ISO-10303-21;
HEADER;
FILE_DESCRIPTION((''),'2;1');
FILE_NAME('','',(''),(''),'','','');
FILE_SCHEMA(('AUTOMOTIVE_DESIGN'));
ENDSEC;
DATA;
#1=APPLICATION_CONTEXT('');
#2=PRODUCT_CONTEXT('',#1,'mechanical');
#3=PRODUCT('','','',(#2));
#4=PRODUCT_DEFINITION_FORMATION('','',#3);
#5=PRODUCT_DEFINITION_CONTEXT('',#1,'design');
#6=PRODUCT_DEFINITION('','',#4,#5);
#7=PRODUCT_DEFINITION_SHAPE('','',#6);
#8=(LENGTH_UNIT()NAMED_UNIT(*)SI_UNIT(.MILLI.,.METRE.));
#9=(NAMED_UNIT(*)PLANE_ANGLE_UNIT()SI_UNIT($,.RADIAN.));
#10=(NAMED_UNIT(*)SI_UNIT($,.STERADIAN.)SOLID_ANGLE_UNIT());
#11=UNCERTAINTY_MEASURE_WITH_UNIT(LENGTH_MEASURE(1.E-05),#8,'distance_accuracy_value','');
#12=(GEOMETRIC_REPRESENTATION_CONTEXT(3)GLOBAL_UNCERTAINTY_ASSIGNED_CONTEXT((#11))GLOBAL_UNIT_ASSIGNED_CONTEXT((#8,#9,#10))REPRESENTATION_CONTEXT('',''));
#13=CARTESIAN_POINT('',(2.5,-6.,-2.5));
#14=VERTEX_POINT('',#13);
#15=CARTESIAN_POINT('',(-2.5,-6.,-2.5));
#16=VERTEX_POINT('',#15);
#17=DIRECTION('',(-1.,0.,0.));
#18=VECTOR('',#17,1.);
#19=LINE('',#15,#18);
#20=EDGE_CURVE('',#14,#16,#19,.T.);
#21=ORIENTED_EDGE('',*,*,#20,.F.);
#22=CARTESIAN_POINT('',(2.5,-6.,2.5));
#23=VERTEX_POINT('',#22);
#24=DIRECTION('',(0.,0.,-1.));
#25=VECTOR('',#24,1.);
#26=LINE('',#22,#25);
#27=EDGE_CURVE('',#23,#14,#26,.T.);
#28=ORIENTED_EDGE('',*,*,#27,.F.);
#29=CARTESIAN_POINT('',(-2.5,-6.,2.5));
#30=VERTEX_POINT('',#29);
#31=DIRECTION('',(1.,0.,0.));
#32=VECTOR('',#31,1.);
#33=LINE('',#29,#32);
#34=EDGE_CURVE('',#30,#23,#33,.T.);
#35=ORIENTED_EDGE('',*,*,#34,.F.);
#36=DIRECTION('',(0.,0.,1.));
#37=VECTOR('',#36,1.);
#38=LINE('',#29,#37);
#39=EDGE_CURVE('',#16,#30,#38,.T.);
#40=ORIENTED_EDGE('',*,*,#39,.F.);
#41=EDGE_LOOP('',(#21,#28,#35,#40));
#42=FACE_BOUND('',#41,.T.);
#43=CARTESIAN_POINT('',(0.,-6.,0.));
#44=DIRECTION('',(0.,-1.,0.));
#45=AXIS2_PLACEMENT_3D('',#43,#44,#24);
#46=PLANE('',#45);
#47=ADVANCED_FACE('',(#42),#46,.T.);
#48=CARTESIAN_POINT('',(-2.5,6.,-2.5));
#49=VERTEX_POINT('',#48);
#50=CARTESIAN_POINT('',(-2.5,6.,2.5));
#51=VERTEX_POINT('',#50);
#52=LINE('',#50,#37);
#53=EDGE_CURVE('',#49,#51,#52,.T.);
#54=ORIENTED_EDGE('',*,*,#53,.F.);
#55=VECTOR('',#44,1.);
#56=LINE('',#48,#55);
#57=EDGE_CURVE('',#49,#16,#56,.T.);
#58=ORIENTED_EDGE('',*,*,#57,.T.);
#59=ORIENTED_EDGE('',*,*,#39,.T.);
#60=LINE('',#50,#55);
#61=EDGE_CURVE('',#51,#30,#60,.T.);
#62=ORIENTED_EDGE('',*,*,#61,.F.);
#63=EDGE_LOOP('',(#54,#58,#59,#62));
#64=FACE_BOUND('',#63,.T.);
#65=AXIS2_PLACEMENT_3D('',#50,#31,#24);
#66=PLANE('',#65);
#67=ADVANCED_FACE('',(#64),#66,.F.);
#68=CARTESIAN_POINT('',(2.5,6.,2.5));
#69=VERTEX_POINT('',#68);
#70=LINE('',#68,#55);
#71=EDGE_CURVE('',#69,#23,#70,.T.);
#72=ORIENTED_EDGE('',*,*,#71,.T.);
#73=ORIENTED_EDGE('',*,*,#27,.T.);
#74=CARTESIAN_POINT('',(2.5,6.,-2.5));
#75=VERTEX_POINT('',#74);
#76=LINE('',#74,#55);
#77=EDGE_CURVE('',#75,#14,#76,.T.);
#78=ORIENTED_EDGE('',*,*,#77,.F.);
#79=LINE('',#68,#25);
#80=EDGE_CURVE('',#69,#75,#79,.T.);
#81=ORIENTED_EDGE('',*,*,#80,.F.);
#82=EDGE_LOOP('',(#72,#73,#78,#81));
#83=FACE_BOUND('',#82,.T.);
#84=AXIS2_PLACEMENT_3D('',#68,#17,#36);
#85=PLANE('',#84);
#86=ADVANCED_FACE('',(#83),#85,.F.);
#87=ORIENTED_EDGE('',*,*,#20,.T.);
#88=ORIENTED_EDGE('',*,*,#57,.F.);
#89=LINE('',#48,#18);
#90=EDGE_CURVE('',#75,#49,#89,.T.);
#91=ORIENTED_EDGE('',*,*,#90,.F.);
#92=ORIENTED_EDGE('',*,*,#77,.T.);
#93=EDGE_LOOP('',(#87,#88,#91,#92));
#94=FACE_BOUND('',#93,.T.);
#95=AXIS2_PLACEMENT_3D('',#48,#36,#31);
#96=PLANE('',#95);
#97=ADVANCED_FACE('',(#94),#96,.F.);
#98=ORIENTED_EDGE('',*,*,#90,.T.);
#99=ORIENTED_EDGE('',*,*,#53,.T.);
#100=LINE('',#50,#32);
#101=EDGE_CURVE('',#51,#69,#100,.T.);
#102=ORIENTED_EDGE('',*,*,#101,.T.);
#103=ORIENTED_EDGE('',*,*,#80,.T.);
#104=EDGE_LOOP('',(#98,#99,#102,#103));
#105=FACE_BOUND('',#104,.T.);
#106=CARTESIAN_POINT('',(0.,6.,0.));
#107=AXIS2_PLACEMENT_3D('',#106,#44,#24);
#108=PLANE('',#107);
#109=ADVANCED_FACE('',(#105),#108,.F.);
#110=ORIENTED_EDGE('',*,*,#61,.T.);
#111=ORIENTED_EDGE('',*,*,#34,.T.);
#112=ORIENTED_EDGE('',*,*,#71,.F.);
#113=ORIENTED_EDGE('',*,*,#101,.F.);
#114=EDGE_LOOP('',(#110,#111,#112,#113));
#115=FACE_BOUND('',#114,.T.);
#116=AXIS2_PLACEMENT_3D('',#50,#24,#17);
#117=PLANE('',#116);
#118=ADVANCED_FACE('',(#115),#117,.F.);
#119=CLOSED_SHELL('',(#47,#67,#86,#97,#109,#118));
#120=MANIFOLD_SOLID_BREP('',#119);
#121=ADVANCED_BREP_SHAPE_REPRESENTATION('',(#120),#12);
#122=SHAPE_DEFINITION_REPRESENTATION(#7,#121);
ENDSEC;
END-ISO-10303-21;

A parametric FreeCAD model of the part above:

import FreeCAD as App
import Part
import Sketcher

doc = App.newDocument("Part")
body = doc.addObject("PartDesign::Body", "Body")

sketch1 = body.newObject("Sketcher::SketchObject", "Sketch")
sketch1.AttachmentSupport = (doc.getObject("XZ_Plane"), [""])
sketch1.MapMode = "FlatFace"
sketch1.addGeometry(Part.LineSegment(App.Vector(-2, -2, 0), App.Vector(-2, 2, 0)), False)
sketch1.addGeometry(Part.LineSegment(App.Vector(-2, 2, 0), App.Vector(2, 2, 0)), False)
sketch1.addGeometry(Part.LineSegment(App.Vector(2, 2, 0), App.Vector(2, -2, 0)), False)
sketch1.addGeometry(Part.LineSegment(App.Vector(2, -2, 0), App.Vector(-2, -2, 0)), False)
sketch1.addConstraint(Sketcher.Constraint("Coincident", 0, 2, 1, 1))
sketch1.addConstraint(Sketcher.Constraint("Coincident", 1, 2, 2, 1))
sketch1.addConstraint(Sketcher.Constraint("Coincident", 2, 2, 3, 1))
sketch1.addConstraint(Sketcher.Constraint("Coincident", 3, 2, 0, 1))
sketch1.addConstraint(Sketcher.Constraint("Vertical", 0))
sketch1.addConstraint(Sketcher.Constraint("Horizontal", 1))
sketch1.addConstraint(Sketcher.Constraint("Vertical", 2))
sketch1.addConstraint(Sketcher.Constraint("Horizontal", 3))
sketch1.addConstraint(Sketcher.Constraint("Symmetric", 0, 2, 2, 2, -1, 1))
sketch1.addConstraint(Sketcher.Constraint("Equal", 3, 0))
sketch1.addConstraint(Sketcher.Constraint("DistanceX", 1, 1, 1, 2, 5.0))
pad1 = body.newObject("PartDesign::Pad", "Pad")
pad1.Profile = sketch1
pad1.Length = 12
pad1.Midplane = True

doc.recompute()
